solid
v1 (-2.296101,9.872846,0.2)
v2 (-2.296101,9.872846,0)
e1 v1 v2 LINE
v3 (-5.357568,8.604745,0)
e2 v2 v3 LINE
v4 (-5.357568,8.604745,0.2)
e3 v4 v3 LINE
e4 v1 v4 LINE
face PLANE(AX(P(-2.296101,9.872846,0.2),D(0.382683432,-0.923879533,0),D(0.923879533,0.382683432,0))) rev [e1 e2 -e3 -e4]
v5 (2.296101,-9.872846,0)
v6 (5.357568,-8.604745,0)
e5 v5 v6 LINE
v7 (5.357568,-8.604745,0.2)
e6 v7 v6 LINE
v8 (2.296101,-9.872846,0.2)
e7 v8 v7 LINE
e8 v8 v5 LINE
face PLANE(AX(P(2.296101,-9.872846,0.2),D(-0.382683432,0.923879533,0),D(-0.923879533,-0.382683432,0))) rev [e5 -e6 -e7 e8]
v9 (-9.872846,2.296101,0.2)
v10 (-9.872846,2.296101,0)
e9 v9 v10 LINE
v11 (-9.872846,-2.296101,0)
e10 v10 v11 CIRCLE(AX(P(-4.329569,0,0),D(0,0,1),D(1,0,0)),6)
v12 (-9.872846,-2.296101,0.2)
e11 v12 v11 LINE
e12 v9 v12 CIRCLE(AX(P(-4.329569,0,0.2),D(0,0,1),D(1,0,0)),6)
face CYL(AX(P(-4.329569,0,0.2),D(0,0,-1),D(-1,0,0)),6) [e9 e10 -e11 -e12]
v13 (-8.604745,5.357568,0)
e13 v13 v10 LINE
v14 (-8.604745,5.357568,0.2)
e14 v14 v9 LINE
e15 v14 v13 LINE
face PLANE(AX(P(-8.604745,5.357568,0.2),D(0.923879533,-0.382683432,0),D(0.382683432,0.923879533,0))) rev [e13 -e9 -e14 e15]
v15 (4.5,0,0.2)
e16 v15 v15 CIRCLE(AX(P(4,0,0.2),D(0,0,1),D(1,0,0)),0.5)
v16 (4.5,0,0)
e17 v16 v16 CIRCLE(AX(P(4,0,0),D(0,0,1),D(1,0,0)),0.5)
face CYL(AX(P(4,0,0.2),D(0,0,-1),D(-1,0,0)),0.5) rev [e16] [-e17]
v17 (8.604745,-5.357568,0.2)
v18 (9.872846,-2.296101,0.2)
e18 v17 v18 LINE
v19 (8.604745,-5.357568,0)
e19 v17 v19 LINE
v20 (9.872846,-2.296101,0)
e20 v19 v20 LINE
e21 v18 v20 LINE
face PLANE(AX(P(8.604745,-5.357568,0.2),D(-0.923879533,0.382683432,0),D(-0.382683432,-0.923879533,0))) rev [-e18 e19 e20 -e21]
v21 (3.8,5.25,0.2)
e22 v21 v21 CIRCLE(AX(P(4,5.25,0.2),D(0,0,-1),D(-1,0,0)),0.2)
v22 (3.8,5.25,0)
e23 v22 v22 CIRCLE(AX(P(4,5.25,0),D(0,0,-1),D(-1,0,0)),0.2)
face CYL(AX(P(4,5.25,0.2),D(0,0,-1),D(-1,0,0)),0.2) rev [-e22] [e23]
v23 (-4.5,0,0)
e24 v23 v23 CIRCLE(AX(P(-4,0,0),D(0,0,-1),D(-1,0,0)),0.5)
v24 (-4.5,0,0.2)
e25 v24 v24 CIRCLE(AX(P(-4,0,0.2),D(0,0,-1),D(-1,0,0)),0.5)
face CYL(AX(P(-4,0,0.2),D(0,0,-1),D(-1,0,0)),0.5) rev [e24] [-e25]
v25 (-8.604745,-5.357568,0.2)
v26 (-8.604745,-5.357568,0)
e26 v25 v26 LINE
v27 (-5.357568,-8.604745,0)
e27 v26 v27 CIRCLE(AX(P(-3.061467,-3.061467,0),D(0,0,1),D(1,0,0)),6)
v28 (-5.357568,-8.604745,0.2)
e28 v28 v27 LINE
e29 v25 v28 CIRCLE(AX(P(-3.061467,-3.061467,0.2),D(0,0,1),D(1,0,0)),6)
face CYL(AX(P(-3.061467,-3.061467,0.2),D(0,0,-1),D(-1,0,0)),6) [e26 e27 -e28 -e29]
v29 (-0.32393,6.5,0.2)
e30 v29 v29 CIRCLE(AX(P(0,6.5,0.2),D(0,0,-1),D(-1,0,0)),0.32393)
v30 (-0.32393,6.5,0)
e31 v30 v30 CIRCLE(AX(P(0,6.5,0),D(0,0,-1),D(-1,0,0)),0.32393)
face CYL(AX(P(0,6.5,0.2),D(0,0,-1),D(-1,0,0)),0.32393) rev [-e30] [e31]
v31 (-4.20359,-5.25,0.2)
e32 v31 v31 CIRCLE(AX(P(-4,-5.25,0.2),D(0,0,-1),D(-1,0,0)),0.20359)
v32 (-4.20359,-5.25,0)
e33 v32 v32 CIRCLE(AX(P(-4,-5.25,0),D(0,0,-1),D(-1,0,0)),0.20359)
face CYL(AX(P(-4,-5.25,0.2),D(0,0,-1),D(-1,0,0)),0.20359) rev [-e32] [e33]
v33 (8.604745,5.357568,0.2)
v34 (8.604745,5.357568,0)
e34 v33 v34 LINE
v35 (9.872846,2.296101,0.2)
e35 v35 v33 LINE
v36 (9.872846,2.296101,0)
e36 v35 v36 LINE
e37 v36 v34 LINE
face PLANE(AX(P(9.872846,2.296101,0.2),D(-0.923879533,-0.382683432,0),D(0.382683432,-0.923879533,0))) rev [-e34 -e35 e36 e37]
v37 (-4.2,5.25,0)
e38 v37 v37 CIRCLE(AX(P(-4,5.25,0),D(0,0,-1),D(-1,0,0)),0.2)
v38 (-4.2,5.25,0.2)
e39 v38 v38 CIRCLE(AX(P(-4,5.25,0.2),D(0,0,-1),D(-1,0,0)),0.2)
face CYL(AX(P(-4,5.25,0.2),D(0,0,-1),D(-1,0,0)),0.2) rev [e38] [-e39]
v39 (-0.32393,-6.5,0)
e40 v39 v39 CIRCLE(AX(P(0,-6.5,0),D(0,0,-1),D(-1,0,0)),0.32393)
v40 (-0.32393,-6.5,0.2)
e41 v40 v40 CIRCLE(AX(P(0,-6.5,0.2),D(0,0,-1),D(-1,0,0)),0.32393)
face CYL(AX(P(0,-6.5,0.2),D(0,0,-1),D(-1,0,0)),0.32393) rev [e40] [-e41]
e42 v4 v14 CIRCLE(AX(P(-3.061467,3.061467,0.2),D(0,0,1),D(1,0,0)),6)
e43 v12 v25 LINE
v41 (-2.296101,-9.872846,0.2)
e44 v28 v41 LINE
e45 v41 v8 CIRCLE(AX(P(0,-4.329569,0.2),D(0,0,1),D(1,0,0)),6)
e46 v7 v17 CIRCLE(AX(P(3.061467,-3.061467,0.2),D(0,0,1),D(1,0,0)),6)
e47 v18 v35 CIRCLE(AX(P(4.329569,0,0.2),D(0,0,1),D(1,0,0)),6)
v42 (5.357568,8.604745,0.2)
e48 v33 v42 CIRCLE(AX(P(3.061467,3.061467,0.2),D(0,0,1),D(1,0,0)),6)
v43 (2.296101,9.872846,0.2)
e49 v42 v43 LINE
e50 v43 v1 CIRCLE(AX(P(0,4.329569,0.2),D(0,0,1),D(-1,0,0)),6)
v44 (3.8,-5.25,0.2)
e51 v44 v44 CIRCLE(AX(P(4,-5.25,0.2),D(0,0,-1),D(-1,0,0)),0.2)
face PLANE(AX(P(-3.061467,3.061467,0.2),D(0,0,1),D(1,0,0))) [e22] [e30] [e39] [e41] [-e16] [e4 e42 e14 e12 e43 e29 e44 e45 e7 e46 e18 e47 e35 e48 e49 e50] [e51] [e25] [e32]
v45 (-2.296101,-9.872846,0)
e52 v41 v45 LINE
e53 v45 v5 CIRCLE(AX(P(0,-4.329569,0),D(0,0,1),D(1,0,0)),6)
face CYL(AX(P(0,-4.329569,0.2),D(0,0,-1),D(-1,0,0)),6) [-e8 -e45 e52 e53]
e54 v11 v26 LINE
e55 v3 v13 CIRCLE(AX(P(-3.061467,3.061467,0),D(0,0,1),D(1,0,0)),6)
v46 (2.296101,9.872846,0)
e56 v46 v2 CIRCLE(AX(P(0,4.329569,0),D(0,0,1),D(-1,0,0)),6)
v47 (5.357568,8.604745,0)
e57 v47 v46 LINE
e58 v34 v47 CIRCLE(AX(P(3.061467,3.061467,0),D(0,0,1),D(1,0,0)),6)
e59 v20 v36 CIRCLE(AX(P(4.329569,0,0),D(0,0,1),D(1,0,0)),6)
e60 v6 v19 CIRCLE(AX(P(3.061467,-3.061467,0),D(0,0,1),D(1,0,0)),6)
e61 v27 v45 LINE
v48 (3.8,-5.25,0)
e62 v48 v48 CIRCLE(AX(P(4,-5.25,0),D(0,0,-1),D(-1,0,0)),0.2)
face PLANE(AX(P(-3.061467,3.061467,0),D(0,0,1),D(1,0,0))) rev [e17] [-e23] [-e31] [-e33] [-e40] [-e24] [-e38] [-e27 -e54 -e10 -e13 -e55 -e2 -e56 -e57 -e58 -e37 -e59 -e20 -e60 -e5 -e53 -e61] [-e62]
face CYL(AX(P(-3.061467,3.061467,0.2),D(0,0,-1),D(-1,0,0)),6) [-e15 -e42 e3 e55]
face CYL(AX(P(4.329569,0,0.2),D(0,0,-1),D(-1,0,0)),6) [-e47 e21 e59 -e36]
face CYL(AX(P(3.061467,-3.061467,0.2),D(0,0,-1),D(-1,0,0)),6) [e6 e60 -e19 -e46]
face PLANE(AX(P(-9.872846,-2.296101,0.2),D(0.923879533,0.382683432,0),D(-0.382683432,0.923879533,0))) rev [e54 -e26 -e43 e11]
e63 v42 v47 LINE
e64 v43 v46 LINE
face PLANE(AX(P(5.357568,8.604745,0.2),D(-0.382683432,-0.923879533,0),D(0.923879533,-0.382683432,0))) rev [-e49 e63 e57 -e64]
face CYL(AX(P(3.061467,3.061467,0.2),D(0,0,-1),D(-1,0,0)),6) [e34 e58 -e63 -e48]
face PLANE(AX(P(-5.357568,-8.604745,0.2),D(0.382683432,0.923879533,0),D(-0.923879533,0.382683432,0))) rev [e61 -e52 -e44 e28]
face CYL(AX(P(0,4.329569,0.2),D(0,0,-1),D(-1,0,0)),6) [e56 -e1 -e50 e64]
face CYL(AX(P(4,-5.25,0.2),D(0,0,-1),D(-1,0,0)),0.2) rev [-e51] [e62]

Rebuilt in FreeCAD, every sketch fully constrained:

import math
import FreeCAD as App
import Part
import Sketcher
Q = App.Units.Quantity

doc = App.newDocument("Part")
body = doc.addObject("PartDesign::Body", "Body")

# Sketch on XY plane
sketch1 = body.newObject("Sketcher::SketchObject", "Sketch")
sketch1.AttachmentSupport = (doc.getObject("XY_Plane"), [""])
sketch1.MapMode = "FlatFace"
sketch1.addGeometry([
    Part.LineSegment(App.Vector(-2.3, 9.9, 0), App.Vector(-5.4, 8.6, 0)),  # 0
    Part.ArcOfCircle(Part.Circle(App.Vector(-3.1, 3.1, 0), App.Vector(0, 0, 1), 6), math.radians(112), math.radians(158)),  # 1
    Part.LineSegment(App.Vector(-8.6, 5.4, 0), App.Vector(-9.9, 2.3, 0)),  # 2
    Part.ArcOfCircle(Part.Circle(App.Vector(-4.3, 0, 0), App.Vector(0, 0, 1), 6), math.radians(157), math.radians(203)),  # 3
    Part.LineSegment(App.Vector(-9.9, -2.3, 0), App.Vector(-8.6, -5.4, 0)),  # 4
    Part.ArcOfCircle(Part.Circle(App.Vector(-3.1, -3.1, 0), App.Vector(0, 0, 1), 6), math.radians(-158), math.radians(-112)),  # 5
    Part.LineSegment(App.Vector(-5.4, -8.6, 0), App.Vector(-2.3, -9.9, 0)),  # 6
    Part.ArcOfCircle(Part.Circle(App.Vector(0, -4.3, 0), App.Vector(0, 0, 1), 6), math.radians(-113), math.radians(-67)),  # 7
    Part.LineSegment(App.Vector(2.3, -9.9, 0), App.Vector(5.4, -8.6, 0)),  # 8
    Part.ArcOfCircle(Part.Circle(App.Vector(3.1, -3.1, 0), App.Vector(0, 0, 1), 6), math.radians(-68), math.radians(-22)),  # 9
    Part.LineSegment(App.Vector(8.6, -5.4, 0), App.Vector(9.9, -2.3, 0)),  # 10
    Part.ArcOfCircle(Part.Circle(App.Vector(4.3, 0, 0), App.Vector(0, 0, 1), 6), math.radians(-23), math.radians(23)),  # 11
    Part.LineSegment(App.Vector(9.9, 2.3, 0), App.Vector(8.6, 5.4, 0)),  # 12
    Part.ArcOfCircle(Part.Circle(App.Vector(3.1, 3.1, 0), App.Vector(0, 0, 1), 6), math.radians(22), math.radians(68)),  # 13
    Part.LineSegment(App.Vector(5.4, 8.6, 0), App.Vector(2.3, 9.9, 0)),  # 14
    Part.ArcOfCircle(Part.Circle(App.Vector(0, 4.3, 0), App.Vector(0, 0, 1), 6), math.radians(67), math.radians(113)),  # 15
], False)
sketch1.addConstraint([
    Sketcher.Constraint("Tangent", 0, 2, 1, 1),
    Sketcher.Constraint("Tangent", 1, 2, 2, 1),
    Sketcher.Constraint("Tangent", 2, 2, 3, 1),
    Sketcher.Constraint("Tangent", 3, 2, 4, 1),
    Sketcher.Constraint("Tangent", 4, 2, 5, 1),
    Sketcher.Constraint("Tangent", 5, 2, 6, 1),
    Sketcher.Constraint("Tangent", 6, 2, 7, 1),
    Sketcher.Constraint("Tangent", 7, 2, 8, 1),
    Sketcher.Constraint("Tangent", 8, 2, 9, 1),
    Sketcher.Constraint("Tangent", 9, 2, 10, 1),
    Sketcher.Constraint("Tangent", 10, 2, 11, 1),
    Sketcher.Constraint("Tangent", 11, 2, 12, 1),
    Sketcher.Constraint("Tangent", 12, 2, 13, 1),
    Sketcher.Constraint("Tangent", 13, 2, 14, 1),
    Sketcher.Constraint("Tangent", 14, 2, 15, 1),
    Sketcher.Constraint("Tangent", 15, 2, 0, 1),
    Sketcher.Constraint("Equal", 1, 3),
    Sketcher.Constraint("Equal", 3, 5),
    Sketcher.Constraint("Equal", 5, 7),
    Sketcher.Constraint("Equal", 7, 9),
    Sketcher.Constraint("Equal", 9, 11),
    Sketcher.Constraint("Equal", 11, 13),
    Sketcher.Constraint("Equal", 13, 15),
    Sketcher.Constraint("Symmetric", 1, 3, 9, 3, -1, 1),
    Sketcher.Constraint("Symmetric", 3, 3, 11, 3, -1, 1),
    Sketcher.Constraint("Symmetric", 5, 3, 13, 3, -1, 1),
    Sketcher.Constraint("Symmetric", 7, 3, 15, 3, -1, 1),
    Sketcher.Constraint("Symmetric", 5, 3, 9, 3, -2),
    Sketcher.Constraint("PointOnObject", 3, 3, -1),
    Sketcher.Constraint("PointOnObject", 7, 3, -2),
    Sketcher.Constraint("Perpendicular", 0, 4),
    Sketcher.Constraint("Equal", 0, 2),
    Sketcher.Constraint("Radius", 1, Q("6 mm")),
    Sketcher.Constraint("Angle", 0, Q("-157.5 deg")),
    Sketcher.Constraint("DistanceX", 0, 2, 3, 3, Q("1.027999 mm")),
])
pad1 = body.newObject("PartDesign::Pad", "Pad")
pad1.Profile = sketch1
pad1.Length = 0.2

# Sketch on XY plane
sketch2 = body.newObject("Sketcher::SketchObject", "Sketch001")
sketch2.AttachmentSupport = (doc.getObject("XY_Plane"), [""])
sketch2.MapMode = "FlatFace"
sketch2.addGeometry([
    Part.Circle(App.Vector(0, -6.5, 0), App.Vector(0, 0, 1), 0.32),  # 0
    Part.Circle(App.Vector(4, -5.25, 0), App.Vector(0, 0, 1), 0.2),  # 1
    Part.Circle(App.Vector(-4, -5.25, 0), App.Vector(0, 0, 1), 0.2),  # 2
    Part.Circle(App.Vector(-4, 5.25, 0), App.Vector(0, 0, 1), 0.2),  # 3
    Part.Circle(App.Vector(0, 6.5, 0), App.Vector(0, 0, 1), 0.32),  # 4
    Part.Circle(App.Vector(4, 5.25, 0), App.Vector(0, 0, 1), 0.2),  # 5
    Part.Circle(App.Vector(-4, 0, 0), App.Vector(0, 0, 1), 0.5),  # 6
    Part.Circle(App.Vector(4, 0, 0), App.Vector(0, 0, 1), 0.5),  # 7
], False)
sketch2.addConstraint([
    Sketcher.Constraint("Equal", 1, 3),
    Sketcher.Constraint("Equal", 0, 4),
    Sketcher.Constraint("Equal", 3, 5),
    Sketcher.Constraint("Equal", 6, 7),
    Sketcher.Constraint("Symmetric", 1, 3, 3, 3, -1, 1),
    Sketcher.Constraint("Symmetric", 0, 3, 4, 3, -1, 1),
    Sketcher.Constraint("Symmetric", 2, 3, 5, 3, -1, 1),
    Sketcher.Constraint("Symmetric", 6, 3, 7, 3, -1, 1),
    Sketcher.Constraint("Symmetric", 1, 3, 2, 3, -2),
    Sketcher.Constraint("PointOnObject", 0, 3, -2),
    Sketcher.Constraint("PointOnObject", 6, 3, -1),
    Sketcher.Constraint("Vertical", 3, 3, 6, 3),
    Sketcher.Constraint("Diameter", 6, Q("1 mm")),
    Sketcher.Constraint("Diameter", 1, Q("0.4 mm")),
    Sketcher.Constraint("DistanceX", -1, 1, 1, 3, Q("4 mm")),
    Sketcher.Constraint("DistanceY", 0, 3, 4, 3, Q("13 mm")),
    Sketcher.Constraint("DistanceY", 2, 3, 3, 3, Q("10.5 mm")),
    Sketcher.Constraint("Diameter", 0, Q("0.647859 mm")),
    Sketcher.Constraint("Diameter", 2, Q("0.40718 mm")),
])
pocket1 = body.newObject("PartDesign::Pocket", "Pocket")
pocket1.Profile = sketch2
pocket1.Type = "ThroughAll"
pocket1.Reversed = True

doc.recompute()
